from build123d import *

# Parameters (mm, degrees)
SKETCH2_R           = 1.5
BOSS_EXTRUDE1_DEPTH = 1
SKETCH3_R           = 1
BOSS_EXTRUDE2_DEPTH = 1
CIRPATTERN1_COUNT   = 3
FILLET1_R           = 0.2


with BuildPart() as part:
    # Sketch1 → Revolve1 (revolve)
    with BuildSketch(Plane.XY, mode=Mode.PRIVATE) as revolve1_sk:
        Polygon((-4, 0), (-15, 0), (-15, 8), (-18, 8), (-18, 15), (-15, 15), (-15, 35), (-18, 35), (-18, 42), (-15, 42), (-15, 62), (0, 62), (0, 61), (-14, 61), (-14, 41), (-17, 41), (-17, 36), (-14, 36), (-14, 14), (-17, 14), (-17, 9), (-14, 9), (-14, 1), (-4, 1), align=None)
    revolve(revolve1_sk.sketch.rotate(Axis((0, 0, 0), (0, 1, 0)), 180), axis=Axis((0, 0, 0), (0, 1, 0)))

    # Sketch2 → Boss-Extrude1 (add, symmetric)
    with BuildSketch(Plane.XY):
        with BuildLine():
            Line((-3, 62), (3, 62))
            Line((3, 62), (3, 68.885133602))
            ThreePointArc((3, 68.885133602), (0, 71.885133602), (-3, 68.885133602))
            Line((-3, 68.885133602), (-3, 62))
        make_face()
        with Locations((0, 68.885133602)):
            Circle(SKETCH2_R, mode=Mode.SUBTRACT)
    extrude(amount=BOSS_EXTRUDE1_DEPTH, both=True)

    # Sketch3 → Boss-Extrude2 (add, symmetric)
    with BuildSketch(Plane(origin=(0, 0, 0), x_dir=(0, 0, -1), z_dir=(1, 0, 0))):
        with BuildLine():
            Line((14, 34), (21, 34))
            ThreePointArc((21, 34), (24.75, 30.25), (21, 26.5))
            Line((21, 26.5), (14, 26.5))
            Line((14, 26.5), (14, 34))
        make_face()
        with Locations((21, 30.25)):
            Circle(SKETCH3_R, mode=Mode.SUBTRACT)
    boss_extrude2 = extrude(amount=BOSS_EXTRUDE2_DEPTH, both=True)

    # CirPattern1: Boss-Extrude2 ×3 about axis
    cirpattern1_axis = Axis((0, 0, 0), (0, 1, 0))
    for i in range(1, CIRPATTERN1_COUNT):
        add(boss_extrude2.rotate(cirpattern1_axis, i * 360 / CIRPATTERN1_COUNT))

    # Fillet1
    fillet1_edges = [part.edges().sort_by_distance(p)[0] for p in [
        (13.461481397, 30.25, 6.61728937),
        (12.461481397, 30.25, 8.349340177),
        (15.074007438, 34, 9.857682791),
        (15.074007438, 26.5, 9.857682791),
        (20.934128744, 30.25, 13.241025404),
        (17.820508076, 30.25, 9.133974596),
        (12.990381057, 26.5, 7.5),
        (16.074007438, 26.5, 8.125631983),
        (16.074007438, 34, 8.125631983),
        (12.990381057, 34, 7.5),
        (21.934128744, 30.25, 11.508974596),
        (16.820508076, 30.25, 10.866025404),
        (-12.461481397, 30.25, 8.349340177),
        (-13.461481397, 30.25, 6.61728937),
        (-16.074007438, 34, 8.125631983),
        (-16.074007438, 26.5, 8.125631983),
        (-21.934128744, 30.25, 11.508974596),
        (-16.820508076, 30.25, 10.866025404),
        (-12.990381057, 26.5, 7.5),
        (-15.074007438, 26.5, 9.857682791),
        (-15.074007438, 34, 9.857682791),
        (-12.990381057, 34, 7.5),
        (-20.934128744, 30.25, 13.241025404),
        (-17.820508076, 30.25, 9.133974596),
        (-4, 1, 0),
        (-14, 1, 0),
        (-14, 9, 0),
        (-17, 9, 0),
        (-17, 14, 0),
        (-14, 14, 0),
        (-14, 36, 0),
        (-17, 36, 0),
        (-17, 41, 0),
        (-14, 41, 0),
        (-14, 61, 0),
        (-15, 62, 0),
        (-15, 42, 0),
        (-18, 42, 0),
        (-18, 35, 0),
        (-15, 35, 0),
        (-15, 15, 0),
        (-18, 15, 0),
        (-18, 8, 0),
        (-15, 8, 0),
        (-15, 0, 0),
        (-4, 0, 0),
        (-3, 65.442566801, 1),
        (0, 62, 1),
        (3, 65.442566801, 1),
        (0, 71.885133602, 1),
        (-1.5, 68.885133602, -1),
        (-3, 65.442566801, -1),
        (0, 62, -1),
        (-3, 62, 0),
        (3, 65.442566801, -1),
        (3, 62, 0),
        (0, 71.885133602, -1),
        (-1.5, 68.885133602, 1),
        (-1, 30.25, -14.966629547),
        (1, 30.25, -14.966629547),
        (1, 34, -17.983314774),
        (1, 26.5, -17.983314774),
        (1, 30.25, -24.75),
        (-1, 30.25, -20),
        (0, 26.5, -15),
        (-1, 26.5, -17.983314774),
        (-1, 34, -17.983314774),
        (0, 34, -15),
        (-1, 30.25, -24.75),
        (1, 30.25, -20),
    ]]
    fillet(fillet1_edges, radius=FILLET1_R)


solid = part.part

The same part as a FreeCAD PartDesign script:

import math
import FreeCAD as App
import Part
import Sketcher
from FreeCAD import Vector
Q = App.Units.Quantity

doc = App.newDocument("Part")
body = doc.addObject("PartDesign::Body", "Body")

sketch1 = body.newObject("Sketcher::SketchObject", "Sketch")
sketch1.AttachmentSupport = (doc.getObject("XY_Plane"), [""])
sketch1.MapMode = "FlatFace"
sketch1.addGeometry(Part.LineSegment(Vector(-15, 0, 0), Vector(-4, 0, 0)), False)
sketch1.addGeometry(Part.LineSegment(Vector(-4, 0, 0), Vector(-4, 1, 0)), False)
sketch1.addGeometry(Part.LineSegment(Vector(-4, 1, 0), Vector(-14, 1, 0)), False)
sketch1.addGeometry(Part.LineSegment(Vector(-14, 1, 0), Vector(-14, 9, 0)), False)
sketch1.addGeometry(Part.LineSegment(Vector(-14, 9, 0), Vector(-17, 9, 0)), False)
sketch1.addGeometry(Part.LineSegment(Vector(-17, 9, 0), Vector(-17, 14, 0)), False)
sketch1.addGeometry(Part.LineSegment(Vector(-17, 14, 0), Vector(-14, 14, 0)), False)
sketch1.addGeometry(Part.LineSegment(Vector(-14, 14, 0), Vector(-14, 36, 0)), False)
sketch1.addGeometry(Part.LineSegment(Vector(-14, 36, 0), Vector(-17, 36, 0)), False)
sketch1.addGeometry(Part.LineSegment(Vector(-17, 36, 0), Vector(-17, 41, 0)), False)
sketch1.addGeometry(Part.LineSegment(Vector(-17, 41, 0), Vector(-14, 41, 0)), False)
sketch1.addGeometry(Part.LineSegment(Vector(-14, 41, 0), Vector(-14, 61, 0)), False)
sketch1.addGeometry(Part.LineSegment(Vector(-14, 61, 0), Vector(0, 61, 0)), False)
sketch1.addGeometry(Part.LineSegment(Vector(0, 61, 0), Vector(0, 62, 0)), False)
sketch1.addGeometry(Part.LineSegment(Vector(0, 62, 0), Vector(-15, 62, 0)), False)
sketch1.addGeometry(Part.LineSegment(Vector(-15, 62, 0), Vector(-15, 42, 0)), False)
sketch1.addGeometry(Part.LineSegment(Vector(-15, 42, 0), Vector(-18, 42, 0)), False)
sketch1.addGeometry(Part.LineSegment(Vector(-18, 42, 0), Vector(-18, 35, 0)), False)
sketch1.addGeometry(Part.LineSegment(Vector(-18, 35, 0), Vector(-15, 35, 0)), False)
sketch1.addGeometry(Part.LineSegment(Vector(-15, 35, 0), Vector(-15, 15, 0)), False)
sketch1.addGeometry(Part.LineSegment(Vector(-15, 15, 0), Vector(-18, 15, 0)), False)
sketch1.addGeometry(Part.LineSegment(Vector(-18, 15, 0), Vector(-18, 8, 0)), False)
sketch1.addGeometry(Part.LineSegment(Vector(-18, 8, 0), Vector(-15, 8, 0)), False)
sketch1.addGeometry(Part.LineSegment(Vector(-15, 8, 0), Vector(-15, 0, 0)), False)
sketch1.addConstraint(Sketcher.Constraint("Coincident", 0, 2, 1, 1))
sketch1.addConstraint(Sketcher.Constraint("Coincident", 1, 2, 2, 1))
sketch1.addConstraint(Sketcher.Constraint("Coincident", 2, 2, 3, 1))
sketch1.addConstraint(Sketcher.Constraint("Coincident", 3, 2, 4, 1))
sketch1.addConstraint(Sketcher.Constraint("Coincident", 4, 2, 5, 1))
sketch1.addConstraint(Sketcher.Constraint("Coincident", 5, 2, 6, 1))
sketch1.addConstraint(Sketcher.Constraint("Coincident", 6, 2, 7, 1))
sketch1.addConstraint(Sketcher.Constraint("Coincident", 7, 2, 8, 1))
sketch1.addConstraint(Sketcher.Constraint("Coincident", 8, 2, 9, 1))
sketch1.addConstraint(Sketcher.Constraint("Coincident", 9, 2, 10, 1))
sketch1.addConstraint(Sketcher.Constraint("Coincident", 10, 2, 11, 1))
sketch1.addConstraint(Sketcher.Constraint("Coincident", 11, 2, 12, 1))
sketch1.addConstraint(Sketcher.Constraint("Coincident", 12, 2, 13, 1))
sketch1.addConstraint(Sketcher.Constraint("Coincident", 13, 2, 14, 1))
sketch1.addConstraint(Sketcher.Constraint("Coincident", 14, 2, 15, 1))
sketch1.addConstraint(Sketcher.Constraint("Coincident", 15, 2, 16, 1))
sketch1.addConstraint(Sketcher.Constraint("Coincident", 16, 2, 17, 1))
sketch1.addConstraint(Sketcher.Constraint("Coincident", 17, 2, 18, 1))
sketch1.addConstraint(Sketcher.Constraint("Coincident", 18, 2, 19, 1))
sketch1.addConstraint(Sketcher.Constraint("Coincident", 19, 2, 20, 1))
sketch1.addConstraint(Sketcher.Constraint("Coincident", 20, 2, 21, 1))
sketch1.addConstraint(Sketcher.Constraint("Coincident", 21, 2, 22, 1))
sketch1.addConstraint(Sketcher.Constraint("Coincident", 22, 2, 23, 1))
sketch1.addConstraint(Sketcher.Constraint("Coincident", 23, 2, 0, 1))
sketch1.addConstraint(Sketcher.Constraint("Horizontal", 0))
sketch1.addConstraint(Sketcher.Constraint("Vertical", 1))
sketch1.addConstraint(Sketcher.Constraint("Horizontal", 2))
sketch1.addConstraint(Sketcher.Constraint("Vertical", 3))
sketch1.addConstraint(Sketcher.Constraint("Horizontal", 4))
sketch1.addConstraint(Sketcher.Constraint("Vertical", 5))
sketch1.addConstraint(Sketcher.Constraint("Horizontal", 6))
sketch1.addConstraint(Sketcher.Constraint("Vertical", 7))
sketch1.addConstraint(Sketcher.Constraint("Horizontal", 8))
sketch1.addConstraint(Sketcher.Constraint("Vertical", 9))
sketch1.addConstraint(Sketcher.Constraint("Horizontal", 10))
sketch1.addConstraint(Sketcher.Constraint("Vertical", 11))
sketch1.addConstraint(Sketcher.Constraint("Horizontal", 12))
sketch1.addConstraint(Sketcher.Constraint("Vertical", 13))
sketch1.addConstraint(Sketcher.Constraint("Horizontal", 14))
sketch1.addConstraint(Sketcher.Constraint("Vertical", 15))
sketch1.addConstraint(Sketcher.Constraint("Horizontal", 16))
sketch1.addConstraint(Sketcher.Constraint("Vertical", 17))
sketch1.addConstraint(Sketcher.Constraint("Horizontal", 18))
sketch1.addConstraint(Sketcher.Constraint("Vertical", 19))
sketch1.addConstraint(Sketcher.Constraint("Horizontal", 20))
sketch1.addConstraint(Sketcher.Constraint("Vertical", 21))
sketch1.addConstraint(Sketcher.Constraint("Horizontal", 22))
sketch1.addConstraint(Sketcher.Constraint("Vertical", 23))
sketch1.addConstraint(Sketcher.Constraint("PointOnObject", 0, 2, -1))
sketch1.addConstraint(Sketcher.Constraint("PointOnObject", 12, 2, -2))
sketch1.addConstraint(Sketcher.Constraint("Vertical", 3, 2, 6, 2))
sketch1.addConstraint(Sketcher.Constraint("Vertical", 5, 2, 8, 2))
sketch1.addConstraint(Sketcher.Constraint("Vertical", 7, 2, 10, 2))
sketch1.addConstraint(Sketcher.Constraint("Vertical", 15, 2, 18, 2))
sketch1.addConstraint(Sketcher.Constraint("Vertical", 17, 2, 20, 2))
sketch1.addConstraint(Sketcher.Constraint("Vertical", 19, 2, 22, 2))
sketch1.addConstraint(Sketcher.Constraint("Equal", 10, 16))
sketch1.addConstraint(Sketcher.Constraint("Equal", 5, 9))
sketch1.addConstraint(Sketcher.Constraint("Equal", 1, 13))
sketch1.addConstraint(Sketcher.Constraint("Equal", 11, 15))
sketch1.addConstraint(Sketcher.Constraint("Equal", 15, 19))
sketch1.addConstraint(Sketcher.Constraint("Equal", 17, 21))
sketch1.addConstraint(Sketcher.Constraint("Equal", 3, 23))
sketch1.addConstraint(Sketcher.Constraint("DistanceX", 0, 1, 0, 2, Q("11 mm")))
sketch1.addConstraint(Sketcher.Constraint("DistanceX", 2, 2, 2, 1, Q("10 mm")))
sketch1.addConstraint(Sketcher.Constraint("DistanceX", 4, 2, 4, 1, Q("3 mm")))
sketch1.addConstraint(Sketcher.Constraint("DistanceX", 12, 1, 12, 2, Q("14 mm")))
sketch1.addConstraint(Sketcher.Constraint("DistanceY", 1, 1, 1, 2, Q("1 mm")))
sketch1.addConstraint(Sketcher.Constraint("DistanceY", 3, 1, 3, 2, Q("8 mm")))
sketch1.addConstraint(Sketcher.Constraint("DistanceY", 5, 1, 5, 2, Q("5 mm")))
sketch1.addConstraint(Sketcher.Constraint("DistanceY", 7, 1, 7, 2, Q("22 mm")))
sketch1.addConstraint(Sketcher.Constraint("DistanceY", 11, 1, 11, 2, Q("20 mm")))
revolution = body.newObject("PartDesign::Revolution", "Revolution")
revolution.Profile = sketch1
revolution.ReferenceAxis = (sketch1, ["V_Axis"])
revolution.Angle = 360

sketch2 = body.newObject("Sketcher::SketchObject", "Sketch001")
sketch2.AttachmentSupport = (doc.getObject("XY_Plane"), [""])
sketch2.MapMode = "FlatFace"
sketch2.addGeometry(Part.LineSegment(Vector(-3, 62, 0), Vector(3, 62, 0)), False)
sketch2.addGeometry(Part.LineSegment(Vector(3, 62, 0), Vector(3, 68.9, 0)), False)
sketch2.addGeometry(Part.ArcOfCircle(Part.Circle(Vector(0, 68.9, 0), Vector(0, 0, 1), 3), math.radians(0), math.radians(180)), False)
sketch2.addGeometry(Part.LineSegment(Vector(-3, 68.9, 0), Vector(-3, 62, 0)), False)
sketch2.addGeometry(Part.Circle(Vector(0, 68.9, 0), Vector(0, 0, 1), 1.5), False)
sketch2.addConstraint(Sketcher.Constraint("Coincident", 0, 2, 1, 1))
sketch2.addConstraint(Sketcher.Constraint("Tangent", 1, 2, 2, 1))
sketch2.addConstraint(Sketcher.Constraint("Tangent", 2, 2, 3, 1))
sketch2.addConstraint(Sketcher.Constraint("Coincident", 3, 2, 0, 1))
sketch2.addConstraint(Sketcher.Constraint("Horizontal", 0))
sketch2.addConstraint(Sketcher.Constraint("Vertical", 1))
sketch2.addConstraint(Sketcher.Constraint("Vertical", 3))
sketch2.addConstraint(Sketcher.Constraint("Coincident", 4, 3, 2, 3))
sketch2.addConstraint(Sketcher.Constraint("PointOnObject", 2, 3, -2))
sketch2.addConstraint(Sketcher.Constraint("Diameter", 4, Q("3 mm")))
sketch2.addConstraint(Sketcher.Constraint("Radius", 2, Q("3 mm")))
sketch2.addConstraint(Sketcher.Constraint("DistanceY", -1, 1, 0, 2, Q("62 mm")))
sketch2.addConstraint(Sketcher.Constraint("DistanceY", 1, 1, 1, 2, Q("6.885134 mm")))
pad1 = body.newObject("PartDesign::Pad", "Pad")
pad1.Profile = sketch2
pad1.Length = 2
pad1.Midplane = True

sketch3 = body.newObject("Sketcher::SketchObject", "Sketch002")
sketch3.AttachmentSupport = (doc.getObject("YZ_Plane"), [""])
sketch3.MapMode = "FlatFace"
sketch3.addGeometry(Part.LineSegment(Vector(34, -21, 0), Vector(34, -14, 0)), False)
sketch3.addGeometry(Part.LineSegment(Vector(34, -14, 0), Vector(26.5, -14, 0)), False)
sketch3.addGeometry(Part.LineSegment(Vector(26.5, -14, 0), Vector(26.5, -21, 0)), False)
sketch3.addGeometry(Part.ArcOfCircle(Part.Circle(Vector(30.2, -21, 0), Vector(0, 0, 1), 3.8), math.radians(180), math.radians(360)), False)
sketch3.addGeometry(Part.Circle(Vector(30.2, -21, 0), Vector(0, 0, 1), 1), False)
sketch3.addConstraint(Sketcher.Constraint("Coincident", 0, 2, 1, 1))
sketch3.addConstraint(Sketcher.Constraint("Coincident", 1, 2, 2, 1))
sketch3.addConstraint(Sketcher.Constraint("Tangent", 2, 2, 3, 1))
sketch3.addConstraint(Sketcher.Constraint("Tangent", 3, 2, 0, 1))
sketch3.addConstraint(Sketcher.Constraint("Vertical", 0))
sketch3.addConstraint(Sketcher.Constraint("Horizontal", 1))
sketch3.addConstraint(Sketcher.Constraint("Vertical", 2))
sketch3.addConstraint(Sketcher.Constraint("Coincident", 4, 3, 3, 3))
sketch3.addConstraint(Sketcher.Constraint("Diameter", 4, Q("2 mm")))
sketch3.addConstraint(Sketcher.Constraint("DistanceY", 0, 1, 0, 2, Q("7 mm")))
sketch3.addConstraint(Sketcher.Constraint("Radius", 3, Q("3.75 mm")))
sketch3.addConstraint(Sketcher.Constraint("DistanceY", 3, 3, -1, 1, Q("21 mm")))
sketch3.addConstraint(Sketcher.Constraint("DistanceX", -1, 1, 0, 2, Q("34 mm")))
pad2 = body.newObject("PartDesign::Pad", "Pad001")
pad2.Profile = sketch3
pad2.Length = 2
pad2.Midplane = True
doc.recompute()

polarpattern = body.newObject("PartDesign::PolarPattern", "PolarPattern")
polarpattern.Originals = [pad2]
polarpattern.Axis = (doc.getObject("Y_Axis"), [""])
polarpattern.Angle = 360
polarpattern.Occurrences = 3
body.Tip = polarpattern
doc.recompute()

fillet = body.newObject("PartDesign::Fillet", "Fillet")
fillet.Base = (polarpattern, ["Edge1"])
fillet.UseAllEdges = True
fillet.Radius = 0.2

doc.recompute()
